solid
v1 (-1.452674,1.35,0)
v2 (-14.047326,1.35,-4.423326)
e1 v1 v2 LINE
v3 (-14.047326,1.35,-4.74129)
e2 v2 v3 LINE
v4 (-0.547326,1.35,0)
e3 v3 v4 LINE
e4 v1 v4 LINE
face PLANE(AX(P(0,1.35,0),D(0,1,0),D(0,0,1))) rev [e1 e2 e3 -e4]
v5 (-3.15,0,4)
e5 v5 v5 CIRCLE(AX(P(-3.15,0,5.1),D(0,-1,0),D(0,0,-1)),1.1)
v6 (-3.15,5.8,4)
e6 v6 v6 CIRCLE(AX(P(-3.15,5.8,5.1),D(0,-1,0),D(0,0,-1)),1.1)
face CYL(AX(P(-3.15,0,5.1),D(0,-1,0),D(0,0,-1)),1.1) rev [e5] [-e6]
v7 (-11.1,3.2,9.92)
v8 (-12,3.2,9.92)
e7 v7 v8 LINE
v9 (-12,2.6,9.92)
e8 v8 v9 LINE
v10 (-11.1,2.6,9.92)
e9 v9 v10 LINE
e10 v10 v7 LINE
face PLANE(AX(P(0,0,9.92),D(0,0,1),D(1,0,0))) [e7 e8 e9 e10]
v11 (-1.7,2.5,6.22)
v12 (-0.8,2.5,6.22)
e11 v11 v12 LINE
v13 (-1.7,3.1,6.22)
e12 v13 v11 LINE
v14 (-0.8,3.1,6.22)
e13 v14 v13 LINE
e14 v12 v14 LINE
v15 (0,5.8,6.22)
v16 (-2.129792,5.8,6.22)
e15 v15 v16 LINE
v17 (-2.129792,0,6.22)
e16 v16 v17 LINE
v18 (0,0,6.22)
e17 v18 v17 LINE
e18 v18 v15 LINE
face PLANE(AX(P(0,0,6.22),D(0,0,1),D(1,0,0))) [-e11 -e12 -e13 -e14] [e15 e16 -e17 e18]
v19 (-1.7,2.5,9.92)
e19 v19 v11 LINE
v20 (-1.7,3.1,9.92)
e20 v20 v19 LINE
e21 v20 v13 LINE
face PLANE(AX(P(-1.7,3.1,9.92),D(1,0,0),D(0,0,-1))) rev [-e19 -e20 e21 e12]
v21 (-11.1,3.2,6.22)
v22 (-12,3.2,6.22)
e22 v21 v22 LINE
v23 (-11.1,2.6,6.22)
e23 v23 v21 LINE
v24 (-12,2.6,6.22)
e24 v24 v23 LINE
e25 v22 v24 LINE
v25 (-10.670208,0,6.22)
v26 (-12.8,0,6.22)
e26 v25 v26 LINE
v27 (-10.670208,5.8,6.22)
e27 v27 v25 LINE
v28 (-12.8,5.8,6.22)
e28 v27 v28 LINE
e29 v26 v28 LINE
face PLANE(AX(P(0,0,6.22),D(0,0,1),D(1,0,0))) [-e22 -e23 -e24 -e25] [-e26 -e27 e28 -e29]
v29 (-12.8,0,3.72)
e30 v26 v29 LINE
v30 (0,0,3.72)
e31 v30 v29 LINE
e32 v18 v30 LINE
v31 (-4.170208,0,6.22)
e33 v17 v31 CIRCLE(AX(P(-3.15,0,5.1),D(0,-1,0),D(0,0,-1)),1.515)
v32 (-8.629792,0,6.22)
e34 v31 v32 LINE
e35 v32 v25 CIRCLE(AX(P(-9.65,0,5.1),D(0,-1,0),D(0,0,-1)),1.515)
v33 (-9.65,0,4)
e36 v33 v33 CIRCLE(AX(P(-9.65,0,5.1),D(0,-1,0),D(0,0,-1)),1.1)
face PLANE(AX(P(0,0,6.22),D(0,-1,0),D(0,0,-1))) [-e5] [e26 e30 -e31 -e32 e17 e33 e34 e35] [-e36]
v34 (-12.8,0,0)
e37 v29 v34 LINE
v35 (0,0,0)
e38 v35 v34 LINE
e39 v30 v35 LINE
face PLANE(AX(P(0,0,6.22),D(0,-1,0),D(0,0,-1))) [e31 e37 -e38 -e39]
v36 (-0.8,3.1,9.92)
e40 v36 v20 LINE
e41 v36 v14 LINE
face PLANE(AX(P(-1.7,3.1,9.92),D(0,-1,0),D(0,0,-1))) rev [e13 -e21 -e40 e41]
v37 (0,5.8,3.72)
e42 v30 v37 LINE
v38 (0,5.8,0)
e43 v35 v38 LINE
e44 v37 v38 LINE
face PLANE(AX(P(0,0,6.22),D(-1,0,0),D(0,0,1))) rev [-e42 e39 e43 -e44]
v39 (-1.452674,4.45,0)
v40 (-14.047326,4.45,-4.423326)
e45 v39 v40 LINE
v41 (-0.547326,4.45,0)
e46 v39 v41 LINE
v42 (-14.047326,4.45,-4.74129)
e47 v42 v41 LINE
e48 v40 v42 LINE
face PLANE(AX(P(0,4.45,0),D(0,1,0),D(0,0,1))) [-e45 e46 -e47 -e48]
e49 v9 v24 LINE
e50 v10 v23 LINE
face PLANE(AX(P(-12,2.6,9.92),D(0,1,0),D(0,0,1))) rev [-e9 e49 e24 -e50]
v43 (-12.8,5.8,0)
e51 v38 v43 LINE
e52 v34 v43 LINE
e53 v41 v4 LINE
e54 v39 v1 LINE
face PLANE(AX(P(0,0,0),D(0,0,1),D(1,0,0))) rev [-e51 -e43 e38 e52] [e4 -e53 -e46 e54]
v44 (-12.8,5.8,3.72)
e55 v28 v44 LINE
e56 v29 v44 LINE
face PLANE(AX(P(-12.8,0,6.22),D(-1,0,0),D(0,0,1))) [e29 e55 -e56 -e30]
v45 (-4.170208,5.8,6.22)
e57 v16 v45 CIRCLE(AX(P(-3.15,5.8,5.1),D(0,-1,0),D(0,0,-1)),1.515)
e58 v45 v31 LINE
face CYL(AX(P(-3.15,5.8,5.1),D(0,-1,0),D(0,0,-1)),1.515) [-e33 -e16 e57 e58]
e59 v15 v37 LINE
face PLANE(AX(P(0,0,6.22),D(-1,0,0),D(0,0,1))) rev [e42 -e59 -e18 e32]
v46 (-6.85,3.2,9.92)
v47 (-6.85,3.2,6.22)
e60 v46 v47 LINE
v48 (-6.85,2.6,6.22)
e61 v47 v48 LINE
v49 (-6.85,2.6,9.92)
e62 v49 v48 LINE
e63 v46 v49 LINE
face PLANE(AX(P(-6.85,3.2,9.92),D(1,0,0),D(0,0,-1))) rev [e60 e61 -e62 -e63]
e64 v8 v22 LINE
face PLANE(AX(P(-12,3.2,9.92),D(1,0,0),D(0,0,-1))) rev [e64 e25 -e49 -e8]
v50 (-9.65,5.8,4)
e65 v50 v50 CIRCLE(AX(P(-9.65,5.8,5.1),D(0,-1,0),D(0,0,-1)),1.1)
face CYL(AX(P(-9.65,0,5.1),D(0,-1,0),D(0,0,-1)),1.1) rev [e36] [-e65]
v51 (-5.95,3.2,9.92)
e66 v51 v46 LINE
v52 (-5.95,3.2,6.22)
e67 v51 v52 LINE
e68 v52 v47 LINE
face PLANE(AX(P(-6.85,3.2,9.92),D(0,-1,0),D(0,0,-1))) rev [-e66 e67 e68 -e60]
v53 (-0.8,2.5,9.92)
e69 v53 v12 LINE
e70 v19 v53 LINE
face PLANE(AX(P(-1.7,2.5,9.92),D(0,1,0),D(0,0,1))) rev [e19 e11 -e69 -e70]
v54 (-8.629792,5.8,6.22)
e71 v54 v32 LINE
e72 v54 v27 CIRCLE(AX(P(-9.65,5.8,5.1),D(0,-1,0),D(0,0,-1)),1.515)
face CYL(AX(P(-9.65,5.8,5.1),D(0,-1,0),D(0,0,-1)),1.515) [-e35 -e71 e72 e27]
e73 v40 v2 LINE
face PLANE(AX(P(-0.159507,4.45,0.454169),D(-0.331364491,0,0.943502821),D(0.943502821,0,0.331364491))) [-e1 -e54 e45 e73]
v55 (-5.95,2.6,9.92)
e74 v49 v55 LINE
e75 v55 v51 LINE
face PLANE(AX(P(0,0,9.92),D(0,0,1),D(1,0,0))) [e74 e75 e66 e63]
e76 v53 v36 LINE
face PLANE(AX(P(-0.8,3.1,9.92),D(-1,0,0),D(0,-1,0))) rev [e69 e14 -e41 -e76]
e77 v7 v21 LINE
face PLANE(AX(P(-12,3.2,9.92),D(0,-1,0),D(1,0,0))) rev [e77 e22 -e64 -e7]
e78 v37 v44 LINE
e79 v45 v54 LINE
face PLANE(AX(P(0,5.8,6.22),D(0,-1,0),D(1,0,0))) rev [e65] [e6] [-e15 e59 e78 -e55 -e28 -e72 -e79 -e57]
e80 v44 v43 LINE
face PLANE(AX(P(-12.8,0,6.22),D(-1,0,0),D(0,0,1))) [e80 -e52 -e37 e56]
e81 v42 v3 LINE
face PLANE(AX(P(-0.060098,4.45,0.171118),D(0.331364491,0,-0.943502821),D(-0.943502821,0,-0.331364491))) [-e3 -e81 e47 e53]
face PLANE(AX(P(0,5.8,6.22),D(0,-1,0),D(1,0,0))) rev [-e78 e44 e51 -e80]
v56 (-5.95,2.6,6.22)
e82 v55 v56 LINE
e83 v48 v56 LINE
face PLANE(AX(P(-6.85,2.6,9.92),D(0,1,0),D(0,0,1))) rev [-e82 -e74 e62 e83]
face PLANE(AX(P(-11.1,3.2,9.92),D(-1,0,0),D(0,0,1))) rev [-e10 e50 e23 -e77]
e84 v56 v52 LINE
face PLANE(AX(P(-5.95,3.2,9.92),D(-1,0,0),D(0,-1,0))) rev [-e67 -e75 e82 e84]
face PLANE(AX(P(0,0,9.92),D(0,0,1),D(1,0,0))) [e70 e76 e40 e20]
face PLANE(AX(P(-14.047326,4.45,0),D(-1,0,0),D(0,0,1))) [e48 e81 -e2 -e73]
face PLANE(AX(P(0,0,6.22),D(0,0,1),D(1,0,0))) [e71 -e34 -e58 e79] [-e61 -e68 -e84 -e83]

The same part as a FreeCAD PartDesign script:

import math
import FreeCAD as App
import Part
import Sketcher

doc = App.newDocument("Part")
body = doc.addObject("PartDesign::Body", "Body")

sketch1 = body.newObject("Sketcher::SketchObject", "Sketch")
sketch1.AttachmentSupport = (doc.getObject("XY_Plane"), [""])
sketch1.MapMode = "FlatFace"
sketch1.addGeometry(Part.LineSegment(App.Vector(-13, 6, 0), App.Vector(-13, 0, 0)), False)
sketch1.addGeometry(Part.LineSegment(App.Vector(-13, 0, 0), App.Vector(0, 0, 0)), False)
sketch1.addGeometry(Part.LineSegment(App.Vector(0, 0, 0), App.Vector(0, 6, 0)), False)
sketch1.addGeometry(Part.LineSegment(App.Vector(0, 6, 0), App.Vector(-13, 6, 0)), False)
sketch1.addConstraint(Sketcher.Constraint("Coincident", 0, 2, 1, 1))
sketch1.addConstraint(Sketcher.Constraint("Coincident", 1, 2, 2, 1))
sketch1.addConstraint(Sketcher.Constraint("Coincident", 2, 2, 3, 1))
sketch1.addConstraint(Sketcher.Constraint("Coincident", 3, 2, 0, 1))
sketch1.addConstraint(Sketcher.Constraint("Vertical", 0))
sketch1.addConstraint(Sketcher.Constraint("Horizontal", 1))
sketch1.addConstraint(Sketcher.Constraint("Vertical", 2))
sketch1.addConstraint(Sketcher.Constraint("Horizontal", 3))
sketch1.addConstraint(Sketcher.Constraint("Coincident", 1, 2, -1, 1))
sketch1.addConstraint(Sketcher.Constraint("DistanceX", 1, 1, 1, 2, 12.8))
sketch1.addConstraint(Sketcher.Constraint("DistanceY", 0, 2, 0, 1, 5.8))
pad1 = body.newObject("PartDesign::Pad", "Pad")
pad1.Profile = sketch1
pad1.Length = 6.22

sketch2 = body.newObject("Sketcher::SketchObject", "Sketch001")
sketch2.AttachmentSupport = (doc.getObject("XZ_Plane"), [""])
sketch2.MapMode = "FlatFace"
sketch2.addGeometry(Part.Circle(App.Vector(-9.7, 5.1, 0), App.Vector(0, 0, 1), 1.1), False)
sketch2.addGeometry(Part.Circle(App.Vector(-3.1, 5.1, 0), App.Vector(0, 0, 1), 1.1), False)
sketch2.addConstraint(Sketcher.Constraint("Equal", 0, 1))
sketch2.addConstraint(Sketcher.Constraint("Horizontal", 0, 3, 1, 3))
sketch2.addConstraint(Sketcher.Constraint("Diameter", 0, 2.2))
sketch2.addConstraint(Sketcher.Constraint("DistanceY", -1, 1, 0, 3, 5.1))
sketch2.addConstraint(Sketcher.Constraint("DistanceX", 0, 3, 1, 3, 6.5))
sketch2.addConstraint(Sketcher.Constraint("DistanceX", 0, 3, -1, 1, 9.65))
doc.recompute()
hole = body.newObject("PartDesign::Hole", "Hole")
hole.Profile = sketch2
hole.ThreadType = "None"
hole.Diameter = 2.2
hole.DepthType = "ThroughAll"

sketch3 = body.newObject("Sketcher::SketchObject", "Sketch002")
sketch3.AttachmentSupport = (doc.getObject("XZ_Plane"), [""])
sketch3.MapMode = "FlatFace"
sketch3.addGeometry(Part.LineSegment(App.Vector(-10.7, 6.2, 0), App.Vector(-8.6, 6.2, 0)), False)
sketch3.addGeometry(Part.ArcOfCircle(Part.Circle(App.Vector(-9.7, 5.1, 0), App.Vector(0, 0, 1), 1.5), math.radians(48), math.radians(132)), False)
sketch3.addGeometry(Part.LineSegment(App.Vector(-4.2, 6.2, 0), App.Vector(-2.1, 6.2, 0)), False)
sketch3.addGeometry(Part.ArcOfCircle(Part.Circle(App.Vector(-3.1, 5.1, 0), App.Vector(0, 0, 1), 1.5), math.radians(48), math.radians(132)), False)
sketch3.addConstraint(Sketcher.Constraint("Coincident", 0, 1, 1, 2))
sketch3.addConstraint(Sketcher.Constraint("Coincident", 1, 1, 0, 2))
sketch3.addConstraint(Sketcher.Constraint("Coincident", 2, 1, 3, 2))
sketch3.addConstraint(Sketcher.Constraint("Coincident", 3, 1, 2, 2))
sketch3.addConstraint(Sketcher.Constraint("Horizontal", 0))
sketch3.addConstraint(Sketcher.Constraint("Horizontal", 2))
sketch3.addConstraint(Sketcher.Constraint("Equal", 1, 3))
sketch3.addConstraint(Sketcher.Constraint("Horizontal", 1, 3, 3, 3))
sketch3.addConstraint(Sketcher.Constraint("Horizontal", 1, 1, 2, 1))
sketch3.addConstraint(Sketcher.Constraint("Radius", 1, 1.515))
sketch3.addConstraint(Sketcher.Constraint("DistanceY", -1, 1, 1, 3, 5.1))
sketch3.addConstraint(Sketcher.Constraint("DistanceX", 1, 3, 3, 3, 6.5))
sketch3.addConstraint(Sketcher.Constraint("DistanceX", 1, 3, -1, 1, 9.65))
sketch3.addConstraint(Sketcher.Constraint("DistanceY", -1, 1, 0, 1, 6.22))
pad2 = body.newObject("PartDesign::Pad", "Pad001")
pad2.Profile = sketch3
pad2.Length = 5.8
pad2.Reversed = True

sketch4 = body.newObject("Sketcher::SketchObject", "Sketch003")
sketch4.AttachmentSupport = (doc.getObject("XY_Plane"), [""])
sketch4.MapMode = "FlatFace"
sketch4.AttachmentOffset = App.Placement(App.Vector(0, 0, 6.22), App.Rotation())
sketch4.addGeometry(Part.LineSegment(App.Vector(-6.8, 3.2, 0), App.Vector(-6.8, 2.6, 0)), False)
sketch4.addGeometry(Part.LineSegment(App.Vector(-6.8, 2.6, 0), App.Vector(-6, 2.6, 0)), False)
sketch4.addGeometry(Part.LineSegment(App.Vector(-6, 2.6, 0), App.Vector(-6, 3.2, 0)), False)
sketch4.addGeometry(Part.LineSegment(App.Vector(-6, 3.2, 0), App.Vector(-6.8, 3.2, 0)), False)
sketch4.addGeometry(Part.LineSegment(App.Vector(-12, 3.2, 0), App.Vector(-12, 2.6, 0)), False)
sketch4.addGeometry(Part.LineSegment(App.Vector(-12, 2.6, 0), App.Vector(-11.1, 2.6, 0)), False)
sketch4.addGeometry(Part.LineSegment(App.Vector(-11.1, 2.6, 0), App.Vector(-11.1, 3.2, 0)), False)
sketch4.addGeometry(Part.LineSegment(App.Vector(-11.1, 3.2, 0), App.Vector(-12, 3.2, 0)), False)
sketch4.addGeometry(Part.LineSegment(App.Vector(-1.7, 3.1, 0), App.Vector(-1.7, 2.5, 0)), False)
sketch4.addGeometry(Part.LineSegment(App.Vector(-1.7, 2.5, 0), App.Vector(-0.8, 2.5, 0)), False)
sketch4.addGeometry(Part.LineSegment(App.Vector(-0.8, 2.5, 0), App.Vector(-0.8, 3.1, 0)), False)
sketch4.addGeometry(Part.LineSegment(App.Vector(-0.8, 3.1, 0), App.Vector(-1.7, 3.1, 0)), False)
sketch4.addConstraint(Sketcher.Constraint("Coincident", 0, 2, 1, 1))
sketch4.addConstraint(Sketcher.Constraint("Coincident", 1, 2, 2, 1))
sketch4.addConstraint(Sketcher.Constraint("Coincident", 2, 2, 3, 1))
sketch4.addConstraint(Sketcher.Constraint("Coincident", 3, 2, 0, 1))
sketch4.addConstraint(Sketcher.Constraint("Coincident", 4, 2, 5, 1))
sketch4.addConstraint(Sketcher.Constraint("Coincident", 5, 2, 6, 1))
sketch4.addConstraint(Sketcher.Constraint("Coincident", 6, 2, 7, 1))
sketch4.addConstraint(Sketcher.Constraint("Coincident", 7, 2, 4, 1))
sketch4.addConstraint(Sketcher.Constraint("Coincident", 8, 2, 9, 1))
sketch4.addConstraint(Sketcher.Constraint("Coincident", 9, 2, 10, 1))
sketch4.addConstraint(Sketcher.Constraint("Coincident", 10, 2, 11, 1))
sketch4.addConstraint(Sketcher.Constraint("Coincident", 11, 2, 8, 1))
sketch4.addConstraint(Sketcher.Constraint("Vertical", 0))
sketch4.addConstraint(Sketcher.Constraint("Horizontal", 1))
sketch4.addConstraint(Sketcher.Constraint("Vertical", 2))
sketch4.addConstraint(Sketcher.Constraint("Horizontal", 3))
sketch4.addConstraint(Sketcher.Constraint("Vertical", 4))
sketch4.addConstraint(Sketcher.Constraint("Horizontal", 5))
sketch4.addConstraint(Sketcher.Constraint("Vertical", 6))
sketch4.addConstraint(Sketcher.Constraint("Horizontal", 7))
sketch4.addConstraint(Sketcher.Constraint("Vertical", 8))
sketch4.addConstraint(Sketcher.Constraint("Horizontal", 9))
sketch4.addConstraint(Sketcher.Constraint("Vertical", 10))
sketch4.addConstraint(Sketcher.Constraint("Horizontal", 11))
sketch4.addConstraint(Sketcher.Constraint("Horizontal", 1, 2, 4, 2))
sketch4.addConstraint(Sketcher.Constraint("Horizontal", 3, 2, 6, 2))
sketch4.addConstraint(Sketcher.Constraint("Equal", 3, 5))
sketch4.addConstraint(Sketcher.Constraint("Equal", 7, 9))
sketch4.addConstraint(Sketcher.Constraint("Equal", 6, 8))
sketch4.addConstraint(Sketcher.Constraint("DistanceX", 1, 1, 1, 2, 0.9))
sketch4.addConstraint(Sketcher.Constraint("DistanceY", 0, 2, 0, 1, 0.6))
sketch4.addConstraint(Sketcher.Constraint("DistanceX", 4, 2, -1, 1, 12.0))
sketch4.addConstraint(Sketcher.Constraint("DistanceY", -1, 1, 0, 2, 2.6))
sketch4.addConstraint(Sketcher.Constraint("DistanceX", 8, 2, -1, 1, 1.7))
sketch4.addConstraint(Sketcher.Constraint("DistanceY", -1, 1, 8, 2, 2.5))
sketch4.addConstraint(Sketcher.Constraint("DistanceX", 0, 2, -1, 1, 6.85))
pad3 = body.newObject("PartDesign::Pad", "Pad002")
pad3.Profile = sketch4
pad3.Length = 3.7

sketch5 = body.newObject("Sketcher::SketchObject", "Sketch004")
sketch5.AttachmentSupport = (doc.getObject("XZ_Plane"), [""])
sketch5.MapMode = "FlatFace"
sketch5.AttachmentOffset = App.Placement(App.Vector(0, 0, -1.35), App.Rotation())
sketch5.addGeometry(Part.LineSegment(App.Vector(-4.3, -1, 0), App.Vector(-1.45, 0, 0)), False)
sketch5.addGeometry(Part.LineSegment(App.Vector(-1.45, 0, 0), App.Vector(-0.55, 0, 0)), False)
sketch5.addGeometry(Part.LineSegment(App.Vector(-0.55, 0, 0), App.Vector(-0.95, -0.14, 0)), False)
sketch5.addGeometry(Part.LineSegment(App.Vector(-0.95, -0.14, 0), App.Vector(-14.05, -4.74, 0)), False)
sketch5.addGeometry(Part.LineSegment(App.Vector(-14.05, -4.74, 0), App.Vector(-14.05, -4.42, 0)), False)
sketch5.addGeometry(Part.LineSegment(App.Vector(-14.05, -4.42, 0), App.Vector(-4.3, -1, 0)), False)
sketch5.addConstraint(Sketcher.Constraint("Coincident", 0, 2, 1, 1))
sketch5.addConstraint(Sketcher.Constraint("Coincident", 1, 2, 2, 1))
sketch5.addConstraint(Sketcher.Constraint("Coincident", 2, 2, 3, 1))
sketch5.addConstraint(Sketcher.Constraint("Coincident", 3, 2, 4, 1))
sketch5.addConstraint(Sketcher.Constraint("Coincident", 4, 2, 5, 1))
sketch5.addConstraint(Sketcher.Constraint("Coincident", 5, 2, 0, 1))
sketch5.addConstraint(Sketcher.Constraint("Horizontal", 1))
sketch5.addConstraint(Sketcher.Constraint("Vertical", 4))
sketch5.addConstraint(Sketcher.Constraint("PointOnObject", 0, 2, -1))
sketch5.addConstraint(Sketcher.Constraint("Parallel", 0, 2))
sketch5.addConstraint(Sketcher.Constraint("Parallel", 2, 3))
sketch5.addConstraint(Sketcher.Constraint("Parallel", 3, 5))
sketch5.addConstraint(Sketcher.Constraint("DistanceY", 5, 2, -1, 1, 1.0))
sketch5.addConstraint(Sketcher.Constraint("DistanceX", 5, 2, -1, 1, 4.3))
sketch5.addConstraint(Sketcher.Constraint("DistanceX", 3, 2, 1, 2, 13.5))
sketch5.addConstraint(Sketcher.Constraint("Distance", 5, 10.330999))
sketch5.addConstraint(Sketcher.Constraint("Distance", 2, 0.427099))
sketch5.addConstraint(Sketcher.Constraint("DistanceY", 4, 2, 2, 2, 4.281801))
pad4 = body.newObject("PartDesign::Pad", "Pad003")
pad4.Profile = sketch5
pad4.Length = 3.1
pad4.Reversed = True

doc.recompute()
